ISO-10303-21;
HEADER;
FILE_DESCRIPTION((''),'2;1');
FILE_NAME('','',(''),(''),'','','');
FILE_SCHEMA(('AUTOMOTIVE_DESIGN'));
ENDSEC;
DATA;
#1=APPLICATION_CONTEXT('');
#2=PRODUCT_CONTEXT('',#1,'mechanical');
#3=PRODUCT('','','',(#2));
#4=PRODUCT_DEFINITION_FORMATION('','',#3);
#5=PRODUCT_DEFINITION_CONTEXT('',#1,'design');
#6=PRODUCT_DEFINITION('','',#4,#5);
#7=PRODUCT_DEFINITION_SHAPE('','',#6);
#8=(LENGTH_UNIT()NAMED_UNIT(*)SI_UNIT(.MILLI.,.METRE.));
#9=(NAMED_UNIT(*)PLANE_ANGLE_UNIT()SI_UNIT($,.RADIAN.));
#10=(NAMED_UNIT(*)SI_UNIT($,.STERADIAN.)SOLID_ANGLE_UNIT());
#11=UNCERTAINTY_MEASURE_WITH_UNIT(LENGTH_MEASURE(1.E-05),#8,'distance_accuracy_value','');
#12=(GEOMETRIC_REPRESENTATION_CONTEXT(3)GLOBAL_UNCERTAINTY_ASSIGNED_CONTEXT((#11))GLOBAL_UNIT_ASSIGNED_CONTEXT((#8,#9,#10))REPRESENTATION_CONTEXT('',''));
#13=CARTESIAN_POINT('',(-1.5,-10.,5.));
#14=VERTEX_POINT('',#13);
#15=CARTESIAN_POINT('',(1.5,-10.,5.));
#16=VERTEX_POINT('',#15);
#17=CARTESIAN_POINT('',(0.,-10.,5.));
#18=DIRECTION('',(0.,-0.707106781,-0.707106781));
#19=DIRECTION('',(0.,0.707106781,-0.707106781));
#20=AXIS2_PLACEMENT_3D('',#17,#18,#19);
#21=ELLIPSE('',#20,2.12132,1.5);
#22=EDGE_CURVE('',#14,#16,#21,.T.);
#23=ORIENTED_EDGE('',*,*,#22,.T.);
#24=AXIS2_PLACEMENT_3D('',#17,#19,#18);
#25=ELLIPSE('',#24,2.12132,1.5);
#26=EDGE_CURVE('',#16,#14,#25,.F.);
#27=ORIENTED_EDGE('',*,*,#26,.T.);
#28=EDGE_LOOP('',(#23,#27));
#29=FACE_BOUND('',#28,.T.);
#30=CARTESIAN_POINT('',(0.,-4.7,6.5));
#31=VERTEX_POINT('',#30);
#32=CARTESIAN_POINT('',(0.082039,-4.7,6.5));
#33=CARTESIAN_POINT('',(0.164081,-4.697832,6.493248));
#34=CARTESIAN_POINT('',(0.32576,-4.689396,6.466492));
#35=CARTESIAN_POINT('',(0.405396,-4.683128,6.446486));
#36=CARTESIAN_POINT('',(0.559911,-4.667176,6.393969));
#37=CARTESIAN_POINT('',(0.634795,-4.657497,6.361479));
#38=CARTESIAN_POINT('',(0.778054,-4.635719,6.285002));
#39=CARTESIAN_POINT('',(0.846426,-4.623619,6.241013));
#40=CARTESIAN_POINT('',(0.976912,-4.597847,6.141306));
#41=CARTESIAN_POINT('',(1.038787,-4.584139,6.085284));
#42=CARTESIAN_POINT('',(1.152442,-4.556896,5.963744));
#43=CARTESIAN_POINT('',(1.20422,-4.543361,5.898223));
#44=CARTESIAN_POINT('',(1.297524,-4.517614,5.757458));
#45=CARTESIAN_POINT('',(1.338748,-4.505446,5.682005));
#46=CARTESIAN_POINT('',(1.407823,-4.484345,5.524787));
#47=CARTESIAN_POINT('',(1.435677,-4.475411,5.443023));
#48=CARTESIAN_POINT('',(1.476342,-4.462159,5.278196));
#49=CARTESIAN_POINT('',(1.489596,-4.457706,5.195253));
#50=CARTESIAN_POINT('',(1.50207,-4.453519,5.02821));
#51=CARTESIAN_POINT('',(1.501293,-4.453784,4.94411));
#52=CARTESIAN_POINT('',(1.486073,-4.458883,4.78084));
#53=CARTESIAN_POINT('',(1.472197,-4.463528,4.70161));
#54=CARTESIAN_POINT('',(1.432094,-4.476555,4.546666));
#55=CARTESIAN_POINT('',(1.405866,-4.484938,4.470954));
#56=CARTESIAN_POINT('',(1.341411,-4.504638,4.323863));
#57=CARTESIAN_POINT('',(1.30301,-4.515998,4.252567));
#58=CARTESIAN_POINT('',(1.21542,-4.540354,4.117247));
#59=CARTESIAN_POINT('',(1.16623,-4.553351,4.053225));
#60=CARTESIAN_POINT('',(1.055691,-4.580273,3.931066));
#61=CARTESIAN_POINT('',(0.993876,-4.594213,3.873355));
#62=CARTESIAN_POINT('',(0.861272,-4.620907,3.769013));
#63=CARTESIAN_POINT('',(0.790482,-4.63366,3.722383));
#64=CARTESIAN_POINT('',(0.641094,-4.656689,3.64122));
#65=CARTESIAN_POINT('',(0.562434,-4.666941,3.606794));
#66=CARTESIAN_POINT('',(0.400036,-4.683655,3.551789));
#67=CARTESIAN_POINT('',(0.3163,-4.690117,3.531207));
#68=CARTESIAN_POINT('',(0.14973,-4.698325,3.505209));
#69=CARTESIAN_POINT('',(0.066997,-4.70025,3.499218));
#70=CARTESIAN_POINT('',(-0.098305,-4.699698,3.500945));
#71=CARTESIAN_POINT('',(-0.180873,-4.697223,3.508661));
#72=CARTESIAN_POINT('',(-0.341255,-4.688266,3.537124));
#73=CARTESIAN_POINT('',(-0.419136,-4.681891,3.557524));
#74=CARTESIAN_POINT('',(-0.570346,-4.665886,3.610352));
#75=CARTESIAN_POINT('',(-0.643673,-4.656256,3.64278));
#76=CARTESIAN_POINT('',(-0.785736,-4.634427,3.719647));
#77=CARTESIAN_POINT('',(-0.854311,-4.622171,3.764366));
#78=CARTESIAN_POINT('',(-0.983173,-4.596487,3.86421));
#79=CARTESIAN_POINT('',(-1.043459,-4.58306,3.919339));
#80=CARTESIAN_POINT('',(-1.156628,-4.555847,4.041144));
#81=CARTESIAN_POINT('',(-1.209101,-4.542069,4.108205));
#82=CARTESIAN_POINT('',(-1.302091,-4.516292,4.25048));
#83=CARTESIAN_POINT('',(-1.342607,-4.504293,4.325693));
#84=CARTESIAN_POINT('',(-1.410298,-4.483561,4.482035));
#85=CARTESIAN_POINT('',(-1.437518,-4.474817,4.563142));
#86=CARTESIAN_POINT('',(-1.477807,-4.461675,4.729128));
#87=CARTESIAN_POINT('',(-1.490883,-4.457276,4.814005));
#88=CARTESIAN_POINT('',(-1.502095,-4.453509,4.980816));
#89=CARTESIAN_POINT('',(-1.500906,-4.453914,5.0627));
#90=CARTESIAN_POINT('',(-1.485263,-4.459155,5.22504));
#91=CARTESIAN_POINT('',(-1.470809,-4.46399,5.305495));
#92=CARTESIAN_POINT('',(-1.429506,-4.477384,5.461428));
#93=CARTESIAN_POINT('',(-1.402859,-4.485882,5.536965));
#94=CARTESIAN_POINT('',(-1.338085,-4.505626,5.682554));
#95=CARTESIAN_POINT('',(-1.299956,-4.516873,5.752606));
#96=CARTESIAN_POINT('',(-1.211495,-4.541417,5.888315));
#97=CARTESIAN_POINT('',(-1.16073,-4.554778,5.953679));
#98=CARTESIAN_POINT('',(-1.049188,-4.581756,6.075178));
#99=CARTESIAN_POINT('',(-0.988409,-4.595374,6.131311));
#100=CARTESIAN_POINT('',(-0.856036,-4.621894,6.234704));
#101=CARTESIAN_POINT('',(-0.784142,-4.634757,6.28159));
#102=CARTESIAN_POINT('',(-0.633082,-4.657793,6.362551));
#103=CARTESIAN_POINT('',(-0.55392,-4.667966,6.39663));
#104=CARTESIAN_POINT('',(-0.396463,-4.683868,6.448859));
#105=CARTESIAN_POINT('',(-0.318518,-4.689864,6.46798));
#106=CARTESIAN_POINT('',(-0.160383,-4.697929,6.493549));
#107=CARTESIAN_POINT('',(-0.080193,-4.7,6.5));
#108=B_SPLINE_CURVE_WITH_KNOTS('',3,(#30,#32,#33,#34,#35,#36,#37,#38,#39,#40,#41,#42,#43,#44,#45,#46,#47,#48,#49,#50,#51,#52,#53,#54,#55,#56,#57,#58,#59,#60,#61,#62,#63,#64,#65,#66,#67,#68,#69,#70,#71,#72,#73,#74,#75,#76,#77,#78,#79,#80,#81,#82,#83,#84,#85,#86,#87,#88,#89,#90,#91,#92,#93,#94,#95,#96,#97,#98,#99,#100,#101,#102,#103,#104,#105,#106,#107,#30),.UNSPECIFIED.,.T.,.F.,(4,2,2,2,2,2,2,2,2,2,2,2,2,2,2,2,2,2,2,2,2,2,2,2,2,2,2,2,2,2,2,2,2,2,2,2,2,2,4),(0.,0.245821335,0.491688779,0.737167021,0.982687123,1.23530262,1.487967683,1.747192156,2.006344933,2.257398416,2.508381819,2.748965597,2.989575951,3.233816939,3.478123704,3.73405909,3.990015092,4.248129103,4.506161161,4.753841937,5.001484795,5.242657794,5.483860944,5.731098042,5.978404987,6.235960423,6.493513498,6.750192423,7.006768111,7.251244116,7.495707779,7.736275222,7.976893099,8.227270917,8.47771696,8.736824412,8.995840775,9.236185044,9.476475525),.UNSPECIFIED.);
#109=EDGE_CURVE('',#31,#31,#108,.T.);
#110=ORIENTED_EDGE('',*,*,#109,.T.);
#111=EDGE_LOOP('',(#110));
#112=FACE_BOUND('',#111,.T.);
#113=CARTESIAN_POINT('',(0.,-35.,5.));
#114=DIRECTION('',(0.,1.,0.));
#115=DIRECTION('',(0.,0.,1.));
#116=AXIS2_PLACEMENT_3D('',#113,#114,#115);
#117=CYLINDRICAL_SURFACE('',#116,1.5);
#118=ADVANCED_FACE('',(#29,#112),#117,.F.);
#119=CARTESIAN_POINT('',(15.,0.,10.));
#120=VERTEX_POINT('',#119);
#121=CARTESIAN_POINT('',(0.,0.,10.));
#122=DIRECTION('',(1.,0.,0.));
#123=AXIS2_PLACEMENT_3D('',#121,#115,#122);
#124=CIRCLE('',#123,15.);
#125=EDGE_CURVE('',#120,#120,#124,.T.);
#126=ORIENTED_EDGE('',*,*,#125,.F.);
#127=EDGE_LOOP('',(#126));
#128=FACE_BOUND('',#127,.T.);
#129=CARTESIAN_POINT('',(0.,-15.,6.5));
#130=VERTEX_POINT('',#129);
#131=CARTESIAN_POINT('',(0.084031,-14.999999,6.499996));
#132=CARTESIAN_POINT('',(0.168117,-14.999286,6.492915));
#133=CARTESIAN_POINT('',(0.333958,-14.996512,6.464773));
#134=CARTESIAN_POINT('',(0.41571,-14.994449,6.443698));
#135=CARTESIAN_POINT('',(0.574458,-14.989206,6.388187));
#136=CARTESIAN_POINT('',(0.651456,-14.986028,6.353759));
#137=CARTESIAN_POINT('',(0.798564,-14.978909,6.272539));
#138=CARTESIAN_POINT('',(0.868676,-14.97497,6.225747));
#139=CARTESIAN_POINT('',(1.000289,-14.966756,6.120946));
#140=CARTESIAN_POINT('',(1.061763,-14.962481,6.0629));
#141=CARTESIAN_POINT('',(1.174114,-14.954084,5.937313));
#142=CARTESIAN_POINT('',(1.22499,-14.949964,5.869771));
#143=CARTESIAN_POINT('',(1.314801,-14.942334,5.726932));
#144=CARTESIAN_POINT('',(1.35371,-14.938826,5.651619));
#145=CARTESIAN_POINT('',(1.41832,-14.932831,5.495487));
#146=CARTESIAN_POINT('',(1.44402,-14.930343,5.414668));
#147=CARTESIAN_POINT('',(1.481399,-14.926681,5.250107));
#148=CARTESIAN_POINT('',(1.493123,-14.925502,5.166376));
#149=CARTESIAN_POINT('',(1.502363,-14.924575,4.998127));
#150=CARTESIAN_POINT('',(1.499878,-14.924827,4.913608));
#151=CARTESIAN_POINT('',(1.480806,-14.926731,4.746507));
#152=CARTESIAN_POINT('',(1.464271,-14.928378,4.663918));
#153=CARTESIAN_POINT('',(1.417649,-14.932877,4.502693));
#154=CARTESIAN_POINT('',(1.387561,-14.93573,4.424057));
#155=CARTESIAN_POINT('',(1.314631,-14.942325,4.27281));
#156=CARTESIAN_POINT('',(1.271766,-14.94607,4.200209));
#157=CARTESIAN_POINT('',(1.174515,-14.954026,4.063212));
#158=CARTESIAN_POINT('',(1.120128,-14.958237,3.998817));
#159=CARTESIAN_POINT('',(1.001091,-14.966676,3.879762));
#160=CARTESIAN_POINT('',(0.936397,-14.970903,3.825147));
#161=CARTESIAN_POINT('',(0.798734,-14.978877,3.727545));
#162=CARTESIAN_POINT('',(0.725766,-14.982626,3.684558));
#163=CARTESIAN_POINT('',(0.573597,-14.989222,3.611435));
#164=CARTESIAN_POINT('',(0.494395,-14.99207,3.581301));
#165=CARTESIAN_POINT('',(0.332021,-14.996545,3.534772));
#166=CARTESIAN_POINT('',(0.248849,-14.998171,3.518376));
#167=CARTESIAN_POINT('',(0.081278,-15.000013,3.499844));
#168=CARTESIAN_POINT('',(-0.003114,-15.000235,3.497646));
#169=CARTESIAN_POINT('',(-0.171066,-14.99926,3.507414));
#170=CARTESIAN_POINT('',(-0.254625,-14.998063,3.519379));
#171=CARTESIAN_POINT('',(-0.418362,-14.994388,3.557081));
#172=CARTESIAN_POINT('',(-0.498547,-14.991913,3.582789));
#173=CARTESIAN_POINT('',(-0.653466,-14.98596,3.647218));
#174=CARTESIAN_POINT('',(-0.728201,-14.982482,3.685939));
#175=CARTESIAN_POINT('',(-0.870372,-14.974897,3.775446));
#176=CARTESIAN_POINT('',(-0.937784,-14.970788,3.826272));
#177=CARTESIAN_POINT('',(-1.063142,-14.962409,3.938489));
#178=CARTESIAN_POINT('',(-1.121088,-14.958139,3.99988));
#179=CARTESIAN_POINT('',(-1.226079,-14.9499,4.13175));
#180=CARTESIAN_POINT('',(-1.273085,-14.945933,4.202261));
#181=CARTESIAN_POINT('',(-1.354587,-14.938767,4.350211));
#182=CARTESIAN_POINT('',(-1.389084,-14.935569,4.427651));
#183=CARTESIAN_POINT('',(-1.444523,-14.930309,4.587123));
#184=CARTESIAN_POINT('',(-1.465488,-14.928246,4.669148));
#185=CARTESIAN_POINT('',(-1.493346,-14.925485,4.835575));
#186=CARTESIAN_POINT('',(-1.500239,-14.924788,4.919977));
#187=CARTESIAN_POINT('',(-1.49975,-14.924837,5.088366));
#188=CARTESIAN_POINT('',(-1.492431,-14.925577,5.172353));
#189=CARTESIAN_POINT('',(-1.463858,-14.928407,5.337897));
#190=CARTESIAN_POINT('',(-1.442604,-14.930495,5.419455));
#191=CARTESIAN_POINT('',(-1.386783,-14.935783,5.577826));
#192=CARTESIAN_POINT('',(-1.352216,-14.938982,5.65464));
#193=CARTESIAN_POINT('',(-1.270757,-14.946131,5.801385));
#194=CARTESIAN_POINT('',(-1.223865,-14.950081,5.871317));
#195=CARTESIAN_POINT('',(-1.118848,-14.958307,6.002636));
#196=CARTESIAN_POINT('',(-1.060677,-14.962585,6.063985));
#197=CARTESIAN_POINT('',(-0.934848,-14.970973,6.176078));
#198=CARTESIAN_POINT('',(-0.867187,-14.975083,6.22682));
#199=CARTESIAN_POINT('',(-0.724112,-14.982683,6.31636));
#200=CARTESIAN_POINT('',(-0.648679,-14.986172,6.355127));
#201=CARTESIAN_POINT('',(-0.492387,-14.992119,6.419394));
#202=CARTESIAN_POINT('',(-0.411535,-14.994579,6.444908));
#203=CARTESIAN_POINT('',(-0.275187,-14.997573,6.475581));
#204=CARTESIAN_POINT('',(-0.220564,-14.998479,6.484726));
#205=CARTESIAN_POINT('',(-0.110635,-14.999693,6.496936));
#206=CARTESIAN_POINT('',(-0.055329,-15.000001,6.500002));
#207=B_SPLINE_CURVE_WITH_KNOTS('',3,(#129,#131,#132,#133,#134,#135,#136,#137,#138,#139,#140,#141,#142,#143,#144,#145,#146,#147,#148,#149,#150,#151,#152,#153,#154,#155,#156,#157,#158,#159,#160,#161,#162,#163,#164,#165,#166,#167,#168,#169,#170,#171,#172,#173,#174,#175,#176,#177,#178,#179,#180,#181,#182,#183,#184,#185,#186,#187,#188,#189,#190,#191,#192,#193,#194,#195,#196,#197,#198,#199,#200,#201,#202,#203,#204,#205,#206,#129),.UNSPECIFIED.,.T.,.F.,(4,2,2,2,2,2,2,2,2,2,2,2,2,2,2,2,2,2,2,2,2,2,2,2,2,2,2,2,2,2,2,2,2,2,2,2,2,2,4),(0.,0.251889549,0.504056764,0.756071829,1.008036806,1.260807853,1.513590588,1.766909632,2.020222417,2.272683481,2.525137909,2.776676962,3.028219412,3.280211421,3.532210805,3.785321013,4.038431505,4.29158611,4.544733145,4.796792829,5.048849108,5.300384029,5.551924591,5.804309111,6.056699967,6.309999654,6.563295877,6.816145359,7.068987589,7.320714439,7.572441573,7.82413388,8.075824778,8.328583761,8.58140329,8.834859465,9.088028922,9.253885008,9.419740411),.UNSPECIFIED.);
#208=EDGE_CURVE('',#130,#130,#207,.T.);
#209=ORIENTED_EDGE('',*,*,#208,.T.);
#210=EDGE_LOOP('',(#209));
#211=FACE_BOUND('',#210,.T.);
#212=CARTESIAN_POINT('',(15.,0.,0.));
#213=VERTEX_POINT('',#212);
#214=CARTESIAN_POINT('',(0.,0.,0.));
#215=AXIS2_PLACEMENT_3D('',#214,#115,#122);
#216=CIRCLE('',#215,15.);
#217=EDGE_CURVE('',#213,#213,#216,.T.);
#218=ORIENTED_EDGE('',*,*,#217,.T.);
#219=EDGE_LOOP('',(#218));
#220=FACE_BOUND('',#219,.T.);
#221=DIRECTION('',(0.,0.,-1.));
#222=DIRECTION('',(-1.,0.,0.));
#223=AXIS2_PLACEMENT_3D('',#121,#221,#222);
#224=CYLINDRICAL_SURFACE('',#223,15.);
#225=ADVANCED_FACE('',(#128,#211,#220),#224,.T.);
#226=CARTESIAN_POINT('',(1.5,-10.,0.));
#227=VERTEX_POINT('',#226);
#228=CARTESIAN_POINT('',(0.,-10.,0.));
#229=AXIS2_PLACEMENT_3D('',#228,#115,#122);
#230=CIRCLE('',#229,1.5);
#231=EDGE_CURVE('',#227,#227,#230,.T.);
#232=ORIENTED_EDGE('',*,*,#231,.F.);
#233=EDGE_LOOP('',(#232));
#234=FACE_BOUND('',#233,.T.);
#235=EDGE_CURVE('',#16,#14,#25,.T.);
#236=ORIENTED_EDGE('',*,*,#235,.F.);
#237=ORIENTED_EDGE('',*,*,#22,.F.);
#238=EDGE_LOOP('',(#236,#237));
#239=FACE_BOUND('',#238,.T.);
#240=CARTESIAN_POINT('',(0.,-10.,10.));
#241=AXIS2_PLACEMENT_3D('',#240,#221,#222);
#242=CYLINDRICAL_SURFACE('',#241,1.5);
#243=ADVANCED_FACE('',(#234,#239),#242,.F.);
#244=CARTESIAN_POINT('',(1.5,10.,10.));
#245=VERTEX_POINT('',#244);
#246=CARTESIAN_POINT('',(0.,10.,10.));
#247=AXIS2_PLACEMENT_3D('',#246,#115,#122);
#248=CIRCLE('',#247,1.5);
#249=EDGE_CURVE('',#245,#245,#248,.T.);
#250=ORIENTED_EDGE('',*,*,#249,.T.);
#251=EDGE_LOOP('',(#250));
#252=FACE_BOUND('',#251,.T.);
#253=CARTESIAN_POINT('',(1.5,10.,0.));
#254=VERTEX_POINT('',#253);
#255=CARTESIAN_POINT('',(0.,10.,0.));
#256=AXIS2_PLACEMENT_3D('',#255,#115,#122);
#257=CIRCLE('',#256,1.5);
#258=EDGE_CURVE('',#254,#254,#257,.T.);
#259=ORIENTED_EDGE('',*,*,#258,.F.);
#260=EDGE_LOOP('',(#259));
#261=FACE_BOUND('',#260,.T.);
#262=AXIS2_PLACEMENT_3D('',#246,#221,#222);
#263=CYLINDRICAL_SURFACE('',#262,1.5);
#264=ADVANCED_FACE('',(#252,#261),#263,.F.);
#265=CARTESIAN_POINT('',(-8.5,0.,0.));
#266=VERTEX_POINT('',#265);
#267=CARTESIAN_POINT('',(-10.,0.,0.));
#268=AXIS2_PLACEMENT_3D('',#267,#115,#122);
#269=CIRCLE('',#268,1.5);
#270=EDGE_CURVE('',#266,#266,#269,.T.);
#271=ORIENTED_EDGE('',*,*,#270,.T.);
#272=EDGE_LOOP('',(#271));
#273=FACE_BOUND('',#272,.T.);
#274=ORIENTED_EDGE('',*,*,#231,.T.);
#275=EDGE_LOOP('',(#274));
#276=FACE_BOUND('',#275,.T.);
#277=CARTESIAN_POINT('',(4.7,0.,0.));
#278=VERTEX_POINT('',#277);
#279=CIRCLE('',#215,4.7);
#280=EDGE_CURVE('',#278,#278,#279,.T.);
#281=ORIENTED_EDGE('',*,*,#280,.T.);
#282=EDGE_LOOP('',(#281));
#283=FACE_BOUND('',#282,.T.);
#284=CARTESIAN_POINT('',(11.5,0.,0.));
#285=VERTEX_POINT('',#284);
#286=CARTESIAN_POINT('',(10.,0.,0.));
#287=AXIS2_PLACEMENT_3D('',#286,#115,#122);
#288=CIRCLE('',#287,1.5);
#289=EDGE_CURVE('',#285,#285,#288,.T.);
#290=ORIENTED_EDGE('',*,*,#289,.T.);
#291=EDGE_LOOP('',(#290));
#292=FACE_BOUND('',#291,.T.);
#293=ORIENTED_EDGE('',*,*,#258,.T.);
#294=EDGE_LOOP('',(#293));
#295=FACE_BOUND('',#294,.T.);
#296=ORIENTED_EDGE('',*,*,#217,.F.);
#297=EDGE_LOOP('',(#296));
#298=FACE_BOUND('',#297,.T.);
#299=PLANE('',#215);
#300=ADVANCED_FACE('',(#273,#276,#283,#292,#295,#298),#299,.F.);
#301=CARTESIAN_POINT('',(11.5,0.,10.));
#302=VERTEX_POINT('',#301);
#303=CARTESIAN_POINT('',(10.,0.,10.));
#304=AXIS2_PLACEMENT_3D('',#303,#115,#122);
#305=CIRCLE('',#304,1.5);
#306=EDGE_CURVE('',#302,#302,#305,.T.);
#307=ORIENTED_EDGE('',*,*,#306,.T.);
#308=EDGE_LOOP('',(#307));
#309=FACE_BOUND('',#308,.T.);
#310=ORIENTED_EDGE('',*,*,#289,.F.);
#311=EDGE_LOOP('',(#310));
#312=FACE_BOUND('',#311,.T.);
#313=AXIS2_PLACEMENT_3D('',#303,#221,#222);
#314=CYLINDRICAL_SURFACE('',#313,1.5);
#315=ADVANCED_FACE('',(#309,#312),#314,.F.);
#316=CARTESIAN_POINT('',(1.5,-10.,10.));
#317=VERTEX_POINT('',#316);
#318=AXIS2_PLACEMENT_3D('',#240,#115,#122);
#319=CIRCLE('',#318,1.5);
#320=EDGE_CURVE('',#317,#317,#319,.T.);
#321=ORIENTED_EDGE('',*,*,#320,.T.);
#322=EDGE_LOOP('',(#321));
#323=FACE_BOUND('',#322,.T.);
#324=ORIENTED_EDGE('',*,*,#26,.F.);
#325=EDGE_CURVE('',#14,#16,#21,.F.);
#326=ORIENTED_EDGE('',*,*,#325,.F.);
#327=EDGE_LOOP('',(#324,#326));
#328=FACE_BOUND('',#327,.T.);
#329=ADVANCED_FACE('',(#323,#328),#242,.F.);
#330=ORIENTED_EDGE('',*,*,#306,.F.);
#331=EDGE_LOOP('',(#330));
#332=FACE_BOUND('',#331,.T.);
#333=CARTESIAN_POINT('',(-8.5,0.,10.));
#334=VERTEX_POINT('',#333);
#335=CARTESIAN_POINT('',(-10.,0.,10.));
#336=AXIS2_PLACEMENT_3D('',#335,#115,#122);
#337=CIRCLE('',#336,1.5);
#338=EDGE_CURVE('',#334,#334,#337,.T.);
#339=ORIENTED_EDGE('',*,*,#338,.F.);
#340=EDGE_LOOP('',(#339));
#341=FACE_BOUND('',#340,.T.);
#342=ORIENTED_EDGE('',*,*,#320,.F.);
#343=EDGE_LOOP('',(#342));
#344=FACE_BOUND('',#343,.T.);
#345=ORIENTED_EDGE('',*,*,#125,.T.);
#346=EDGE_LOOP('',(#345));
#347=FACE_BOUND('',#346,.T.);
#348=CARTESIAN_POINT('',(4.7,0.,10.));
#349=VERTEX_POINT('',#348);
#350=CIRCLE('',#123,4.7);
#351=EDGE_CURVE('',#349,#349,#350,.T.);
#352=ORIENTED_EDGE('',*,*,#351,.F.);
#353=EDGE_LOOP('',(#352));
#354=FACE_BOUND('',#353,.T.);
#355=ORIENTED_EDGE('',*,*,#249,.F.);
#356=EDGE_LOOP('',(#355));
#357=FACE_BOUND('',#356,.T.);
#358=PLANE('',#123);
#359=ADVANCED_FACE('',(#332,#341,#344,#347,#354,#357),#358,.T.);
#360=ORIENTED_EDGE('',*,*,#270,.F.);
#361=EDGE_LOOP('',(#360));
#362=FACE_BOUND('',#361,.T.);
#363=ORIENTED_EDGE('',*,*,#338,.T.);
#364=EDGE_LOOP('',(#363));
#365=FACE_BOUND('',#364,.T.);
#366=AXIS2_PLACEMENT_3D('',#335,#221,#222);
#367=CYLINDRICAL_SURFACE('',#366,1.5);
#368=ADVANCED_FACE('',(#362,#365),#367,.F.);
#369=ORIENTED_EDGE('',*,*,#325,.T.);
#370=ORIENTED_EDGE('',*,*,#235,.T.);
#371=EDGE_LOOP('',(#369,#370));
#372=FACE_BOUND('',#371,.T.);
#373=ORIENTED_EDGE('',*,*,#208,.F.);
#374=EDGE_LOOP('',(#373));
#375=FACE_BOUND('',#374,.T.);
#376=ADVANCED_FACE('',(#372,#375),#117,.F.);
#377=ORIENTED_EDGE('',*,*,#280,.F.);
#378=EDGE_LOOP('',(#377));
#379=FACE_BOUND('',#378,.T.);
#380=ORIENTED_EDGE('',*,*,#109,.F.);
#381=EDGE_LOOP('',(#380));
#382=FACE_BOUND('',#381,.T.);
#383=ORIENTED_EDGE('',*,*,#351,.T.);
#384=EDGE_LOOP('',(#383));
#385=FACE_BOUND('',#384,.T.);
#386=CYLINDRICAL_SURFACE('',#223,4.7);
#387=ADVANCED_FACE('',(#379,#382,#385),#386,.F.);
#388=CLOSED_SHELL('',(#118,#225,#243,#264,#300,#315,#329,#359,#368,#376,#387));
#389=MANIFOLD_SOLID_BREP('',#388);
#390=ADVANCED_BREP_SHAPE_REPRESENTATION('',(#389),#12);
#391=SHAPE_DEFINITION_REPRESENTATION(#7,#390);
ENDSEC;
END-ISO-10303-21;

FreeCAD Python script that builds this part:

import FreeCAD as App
import Part
import Sketcher

V = App.Vector
Q = App.Units.Quantity

doc = App.newDocument("Part")
params = doc.addObject("Spreadsheet::Sheet", "Params")
for row, (alias, value) in enumerate([
    ("sketch1_diameter", "30 mm"),
    ("sketch1_diameter2", "3 mm"),
    ("sketch1_diameter3", "9.4 mm"),
    ("pad1_length", "10 mm"),
    ("sketch2_diameter", "3 mm"),
    ("pocket1_length", "35 mm"),
], start=1):
    params.set(f"A{row}", alias)
    params.set(f"B{row}", "=" + value)
    params.setAlias(f"B{row}", alias)

body = doc.addObject("PartDesign::Body", "Body")

# Sketch on XY plane
sketch1 = doc.addObject("Sketcher::SketchObject", "Sketch")
body.addObject(sketch1)
sketch1.AttachmentSupport = (doc.XY_Plane, [""])
sketch1.MapMode = "FlatFace"
sketch1.addGeometry(Part.Circle(V(0, 0, 0), V(0, 0, 1), 15), False)
sketch1.addGeometry(Part.Circle(V(0, -10, 0), V(0, 0, 1), 1.5), False)
sketch1.addGeometry(Part.Circle(V(-10, 0, 0), V(0, 0, 1), 1.5), False)
sketch1.addGeometry(Part.Circle(V(0, 0, 0), V(0, 0, 1), 4.7), False)
sketch1.addGeometry(Part.Circle(V(10, 0, 0), V(0, 0, 1), 1.5), False)
sketch1.addGeometry(Part.Circle(V(0, 10, 0), V(0, 0, 1), 1.5), False)
sketch1.addConstraint(Sketcher.Constraint("Coincident", 0, 3, -1, 1))
sketch1.addConstraint(Sketcher.Constraint("Coincident", 3, 3, -1, 1))
sketch1.addConstraint(Sketcher.Constraint("Equal", 1, 2))
sketch1.addConstraint(Sketcher.Constraint("Equal", 2, 4))
sketch1.addConstraint(Sketcher.Constraint("Equal", 4, 5))
sketch1.addConstraint(Sketcher.Constraint("Symmetric", 2, 3, 4, 3, -1, 1))
sketch1.addConstraint(Sketcher.Constraint("Symmetric", 1, 3, 5, 3, -1, 1))
sketch1.addConstraint(Sketcher.Constraint("PointOnObject", 1, 3, -2))
sketch1.addConstraint(Sketcher.Constraint("PointOnObject", 2, 3, -1))
sketch1.addConstraint(Sketcher.Constraint("Diameter", 0, Q("30 mm")))
sketch1.addConstraint(Sketcher.Constraint("Diameter", 1, Q("3 mm")))
sketch1.addConstraint(Sketcher.Constraint("Diameter", 3, Q("9.4 mm")))
sketch1.addConstraint(Sketcher.Constraint("DistanceY", 1, 3, -1, 1, Q("10 mm")))
sketch1.addConstraint(Sketcher.Constraint("DistanceX", 2, 3, -1, 1, Q("10 mm")))
sketch1.setExpression("Constraints[9]", "Params.sketch1_diameter")
sketch1.setExpression("Constraints[10]", "Params.sketch1_diameter2")
sketch1.setExpression("Constraints[11]", "Params.sketch1_diameter3")
pad1 = doc.addObject("PartDesign::Pad", "Pad")
body.addObject(pad1)
pad1.Profile = sketch1
pad1.setExpression("Length", "Params.pad1_length")

# Sketch on XZ plane
sketch2 = doc.addObject("Sketcher::SketchObject", "Sketch001")
body.addObject(sketch2)
sketch2.AttachmentSupport = (doc.XZ_Plane, [""])
sketch2.MapMode = "FlatFace"
sketch2.addGeometry(Part.Circle(V(0, 5, 0), V(0, 0, 1), 1.5), False)
sketch2.addConstraint(Sketcher.Constraint("PointOnObject", 0, 3, -2))
sketch2.addConstraint(Sketcher.Constraint("Diameter", 0, Q("3 mm")))
sketch2.addConstraint(Sketcher.Constraint("DistanceY", -1, 1, 0, 3, Q("5 mm")))
sketch2.setExpression("Constraints[1]", "Params.sketch2_diameter")
pocket1 = doc.addObject("PartDesign::Pocket", "Pocket")
body.addObject(pocket1)
pocket1.Profile = sketch2
pocket1.setExpression("Length", "Params.pocket1_length")
pocket1.Reversed = True

doc.recompute()
